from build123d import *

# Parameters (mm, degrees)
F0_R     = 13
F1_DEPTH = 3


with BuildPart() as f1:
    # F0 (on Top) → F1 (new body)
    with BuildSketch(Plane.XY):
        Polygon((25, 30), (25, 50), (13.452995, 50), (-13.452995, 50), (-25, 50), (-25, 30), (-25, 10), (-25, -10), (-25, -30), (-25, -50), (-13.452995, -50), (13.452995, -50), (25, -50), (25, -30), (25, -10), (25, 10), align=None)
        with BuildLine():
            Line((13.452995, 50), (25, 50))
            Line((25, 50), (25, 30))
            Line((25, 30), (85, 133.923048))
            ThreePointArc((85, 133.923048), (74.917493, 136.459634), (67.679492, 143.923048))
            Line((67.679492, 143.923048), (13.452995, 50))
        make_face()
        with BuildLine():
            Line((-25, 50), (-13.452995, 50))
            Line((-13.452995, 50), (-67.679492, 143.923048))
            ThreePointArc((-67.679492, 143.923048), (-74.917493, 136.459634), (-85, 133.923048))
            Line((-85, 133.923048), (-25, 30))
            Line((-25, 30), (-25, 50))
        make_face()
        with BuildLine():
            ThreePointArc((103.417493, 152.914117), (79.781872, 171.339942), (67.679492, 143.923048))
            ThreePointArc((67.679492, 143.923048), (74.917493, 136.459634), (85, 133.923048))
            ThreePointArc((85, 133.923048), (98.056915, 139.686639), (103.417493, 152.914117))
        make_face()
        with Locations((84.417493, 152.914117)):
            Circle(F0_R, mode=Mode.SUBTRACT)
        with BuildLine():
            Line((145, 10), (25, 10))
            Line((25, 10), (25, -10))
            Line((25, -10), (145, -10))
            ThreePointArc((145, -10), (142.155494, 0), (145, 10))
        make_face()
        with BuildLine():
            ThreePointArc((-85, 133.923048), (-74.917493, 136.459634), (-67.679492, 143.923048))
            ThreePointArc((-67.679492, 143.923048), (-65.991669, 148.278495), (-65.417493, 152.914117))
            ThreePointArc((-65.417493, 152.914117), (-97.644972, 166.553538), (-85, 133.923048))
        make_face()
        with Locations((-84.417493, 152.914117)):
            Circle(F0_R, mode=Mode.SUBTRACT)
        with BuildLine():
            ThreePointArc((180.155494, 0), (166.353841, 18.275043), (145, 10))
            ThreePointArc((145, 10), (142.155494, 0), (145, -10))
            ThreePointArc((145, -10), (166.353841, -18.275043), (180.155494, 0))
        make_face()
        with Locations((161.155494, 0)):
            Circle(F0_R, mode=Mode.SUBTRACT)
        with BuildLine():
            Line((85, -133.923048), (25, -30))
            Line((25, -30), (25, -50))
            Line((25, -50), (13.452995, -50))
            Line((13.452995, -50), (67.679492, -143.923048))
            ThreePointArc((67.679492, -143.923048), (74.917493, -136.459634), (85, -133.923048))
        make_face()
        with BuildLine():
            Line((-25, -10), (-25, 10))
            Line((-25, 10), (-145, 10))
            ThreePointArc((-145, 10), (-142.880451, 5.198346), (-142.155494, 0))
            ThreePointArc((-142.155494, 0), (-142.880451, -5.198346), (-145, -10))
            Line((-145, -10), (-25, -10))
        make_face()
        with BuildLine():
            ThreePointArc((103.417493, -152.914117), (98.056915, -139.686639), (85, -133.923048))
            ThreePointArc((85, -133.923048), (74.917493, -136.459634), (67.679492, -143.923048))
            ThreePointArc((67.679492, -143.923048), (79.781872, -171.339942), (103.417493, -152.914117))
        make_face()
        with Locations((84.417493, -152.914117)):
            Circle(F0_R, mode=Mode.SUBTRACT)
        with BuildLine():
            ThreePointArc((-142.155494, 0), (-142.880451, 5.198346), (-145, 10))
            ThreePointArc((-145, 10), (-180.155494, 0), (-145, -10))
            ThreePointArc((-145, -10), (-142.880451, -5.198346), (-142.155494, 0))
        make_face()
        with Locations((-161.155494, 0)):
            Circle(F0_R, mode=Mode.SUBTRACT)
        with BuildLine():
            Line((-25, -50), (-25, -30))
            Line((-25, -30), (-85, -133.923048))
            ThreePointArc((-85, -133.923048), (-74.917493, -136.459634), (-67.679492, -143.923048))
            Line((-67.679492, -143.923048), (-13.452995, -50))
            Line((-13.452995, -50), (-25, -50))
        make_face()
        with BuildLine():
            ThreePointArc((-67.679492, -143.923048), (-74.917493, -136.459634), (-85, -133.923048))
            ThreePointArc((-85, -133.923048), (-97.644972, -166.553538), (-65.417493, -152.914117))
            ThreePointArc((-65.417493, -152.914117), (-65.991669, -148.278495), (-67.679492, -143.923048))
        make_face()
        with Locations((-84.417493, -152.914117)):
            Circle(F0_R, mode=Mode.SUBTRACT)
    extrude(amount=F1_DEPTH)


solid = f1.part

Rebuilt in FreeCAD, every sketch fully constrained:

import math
import FreeCAD as App
import Part
import Sketcher

V = App.Vector
Q = App.Units.Quantity

doc = App.newDocument("Part")
body = doc.addObject("PartDesign::Body", "Body")

sketch1 = doc.addObject("Sketcher::SketchObject", "Sketch")
body.addObject(sketch1)
sketch1.AttachmentSupport = (doc.XY_Plane, [""])
sketch1.MapMode = "FlatFace"
sketch1.addGeometry([
    Part.LineSegment(V(13.452995, 50, 0), V(-13.452995, 50, 0)),
    Part.LineSegment(V(-13.452995, 50, 0), V(-67.679492, 143.923048, 0)),
    Part.ArcOfCircle(Part.Circle(V(-84.417508, 152.914121, 0), V(0, 0, 1), 19.000015), math.radians(-28.243126), math.radians(-0.000012)),
    Part.ArcOfCircle(Part.Circle(V(-84.417493, 152.914117, 0), V(0, 0, 1), 19), math.radians(0.000001), math.radians(268.243136)),
    Part.LineSegment(V(-85, 133.923048, 0), V(-25, 30, 0)),
    Part.LineSegment(V(-25, 30, 0), V(-25, 10, 0)),
    Part.LineSegment(V(-25, 10, 0), V(-145, 10, 0)),
    Part.ArcOfCircle(Part.Circle(V(-161.155494, 0, 0), V(0, 0, 1), 19), math.radians(31.756864), math.radians(328.243136)),
    Part.LineSegment(V(-145, -10, 0), V(-25, -10, 0)),
    Part.LineSegment(V(-25, -10, 0), V(-25, -30, 0)),
    Part.LineSegment(V(-25, -30, 0), V(-85, -133.923048, 0)),
    Part.ArcOfCircle(Part.Circle(V(-84.417493, -152.914117, 0), V(0, 0, 1), 19), math.radians(91.756864), math.radians(359.999999)),
    Part.ArcOfCircle(Part.Circle(V(-84.417508, -152.914121, 0), V(0, 0, 1), 19.000015), math.radians(0.000012), math.radians(28.243126)),
    Part.LineSegment(V(-67.679492, -143.923048, 0), V(-13.452995, -50, 0)),
    Part.LineSegment(V(-13.452995, -50, 0), V(13.452995, -50, 0)),
    Part.LineSegment(V(13.452995, -50, 0), V(67.679492, -143.923048, 0)),
    Part.ArcOfCircle(Part.Circle(V(84.417493, -152.914117, 0), V(0, 0, 1), 19), math.radians(151.756862), math.radians(360.000001)),
    Part.ArcOfCircle(Part.Circle(V(84.417493, -152.914117, 0), V(0, 0, 1), 19), math.radians(0), math.radians(88.243135)),
    Part.LineSegment(V(85, -133.923048, 0), V(25, -30, 0)),
    Part.LineSegment(V(25, -30, 0), V(25, -10, 0)),
    Part.LineSegment(V(25, -10, 0), V(145, -10, 0)),
    Part.ArcOfCircle(Part.Circle(V(161.155494, 0, 0), V(0, 0, 1), 19), math.radians(-148.243137), math.radians(0.000001)),
    Part.ArcOfCircle(Part.Circle(V(161.155494, 0, 0), V(0, 0, 1), 19), math.radians(-0.000001), math.radians(148.243137)),
    Part.LineSegment(V(145, 10, 0), V(25, 10, 0)),
    Part.LineSegment(V(25, 10, 0), V(25, 30, 0)),
    Part.LineSegment(V(25, 30, 0), V(85, 133.923048, 0)),
    Part.ArcOfCircle(Part.Circle(V(84.417493, 152.914117, 0), V(0, 0, 1), 19), math.radians(-88.243135), math.radians(0)),
    Part.ArcOfCircle(Part.Circle(V(84.417493, 152.914117, 0), V(0, 0, 1), 19), math.radians(-0.000001), math.radians(208.243138)),
    Part.LineSegment(V(67.679492, 143.923048, 0), V(13.452995, 50, 0)),
    Part.Circle(V(-84.417493, -152.914117, 0), V(0, 0, 1), 13),
    Part.Circle(V(84.417493, -152.914117, 0), V(0, 0, 1), 13),
    Part.Circle(V(-161.155494, 0, 0), V(0, 0, 1), 13),
    Part.Circle(V(-84.417493, 152.914117, 0), V(0, 0, 1), 13),
    Part.Circle(V(161.155494, 0, 0), V(0, 0, 1), 13),
    Part.Circle(V(84.417493, 152.914117, 0), V(0, 0, 1), 13),
], False)
sketch1.addConstraint([
    Sketcher.Constraint("Coincident", 0, 2, 1, 1),
    Sketcher.Constraint("Coincident", 1, 2, 2, 1),
    Sketcher.Constraint("Tangent", 2, 2, 3, 1),
    Sketcher.Constraint("Coincident", 3, 2, 4, 1),
    Sketcher.Constraint("Coincident", 4, 2, 5, 1),
    Sketcher.Constraint("Coincident", 5, 2, 6, 1),
    Sketcher.Constraint("Coincident", 6, 2, 7, 1),
    Sketcher.Constraint("Coincident", 7, 2, 8, 1),
    Sketcher.Constraint("Coincident", 8, 2, 9, 1),
    Sketcher.Constraint("Coincident", 9, 2, 10, 1),
    Sketcher.Constraint("Coincident", 10, 2, 11, 1),
    Sketcher.Constraint("Tangent", 11, 2, 12, 1),
    Sketcher.Constraint("Coincident", 12, 2, 13, 1),
    Sketcher.Constraint("Coincident", 13, 2, 14, 1),
    Sketcher.Constraint("Coincident", 14, 2, 15, 1),
    Sketcher.Constraint("Coincident", 15, 2, 16, 1),
    Sketcher.Constraint("Tangent", 16, 2, 17, 1),
    Sketcher.Constraint("Coincident", 17, 2, 18, 1),
    Sketcher.Constraint("Coincident", 18, 2, 19, 1),
    Sketcher.Constraint("Coincident", 19, 2, 20, 1),
    Sketcher.Constraint("Coincident", 20, 2, 21, 1),
    Sketcher.Constraint("Tangent", 21, 2, 22, 1),
    Sketcher.Constraint("Coincident", 22, 2, 23, 1),
    Sketcher.Constraint("Coincident", 23, 2, 24, 1),
    Sketcher.Constraint("Coincident", 24, 2, 25, 1),
    Sketcher.Constraint("Coincident", 25, 2, 26, 1),
    Sketcher.Constraint("Tangent", 26, 2, 27, 1),
    Sketcher.Constraint("Coincident", 27, 2, 28, 1),
    Sketcher.Constraint("Coincident", 28, 2, 0, 1),
    Sketcher.Constraint("Horizontal", 0),
    Sketcher.Constraint("Vertical", 5),
    Sketcher.Constraint("Horizontal", 6),
    Sketcher.Constraint("Horizontal", 8),
    Sketcher.Constraint("Vertical", 9),
    Sketcher.Constraint("Horizontal", 14),
    Sketcher.Constraint("Vertical", 19),
    Sketcher.Constraint("Horizontal", 20),
    Sketcher.Constraint("Horizontal", 23),
    Sketcher.Constraint("Vertical", 24),
    Sketcher.Constraint("Coincident", 29, 3, 11, 3),
    Sketcher.Constraint("Coincident", 30, 3, 16, 3),
    Sketcher.Constraint("Coincident", 31, 3, 7, 3),
    Sketcher.Constraint("Coincident", 32, 3, 3, 3),
    Sketcher.Constraint("Coincident", 33, 3, 21, 3),
    Sketcher.Constraint("Coincident", 34, 3, 26, 3),
    Sketcher.Constraint("Equal", 3, 7),
    Sketcher.Constraint("Equal", 7, 11),
    Sketcher.Constraint("Equal", 2, 12),
    Sketcher.Constraint("Equal", 11, 16),
    Sketcher.Constraint("Equal", 16, 17),
    Sketcher.Constraint("Equal", 17, 21),
    Sketcher.Constraint("Equal", 21, 22),
    Sketcher.Constraint("Equal", 22, 26),
    Sketcher.Constraint("Equal", 26, 27),
    Sketcher.Constraint("Equal", 29, 30),
    Sketcher.Constraint("Equal", 30, 31),
    Sketcher.Constraint("Equal", 31, 32),
    Sketcher.Constraint("Equal", 32, 33),
    Sketcher.Constraint("Equal", 33, 34),
    Sketcher.Constraint("Symmetric", 3, 3, 16, 3, -1, 1),
    Sketcher.Constraint("Symmetric", 7, 3, 21, 3, -1, 1),
    Sketcher.Constraint("Symmetric", 11, 3, 26, 3, -1, 1),
    Sketcher.Constraint("Symmetric", 0, 2, 14, 2, -1, 1),
    Sketcher.Constraint("Symmetric", 1, 2, 15, 2, -1, 1),
    Sketcher.Constraint("Symmetric", 4, 2, 18, 2, -1, 1),
    Sketcher.Constraint("Symmetric", 8, 2, 23, 2, -1, 1),
    Sketcher.Constraint("Symmetric", 11, 3, 16, 3, -2),
    Sketcher.Constraint("Symmetric", 9, 2, 18, 2, -2),
    Sketcher.Constraint("Symmetric", 7, 2, 20, 2, -2),
    Sketcher.Constraint("PointOnObject", 21, 2, -1),
    Sketcher.Constraint("Parallel", 1, 4),
    Sketcher.Constraint("Parallel", 10, 13),
    Sketcher.Constraint("Parallel", 15, 18),
    Sketcher.Constraint("Parallel", 13, 25),
    Sketcher.Constraint("Parallel", 25, 28),
    Sketcher.Constraint("Horizontal", 34, 3, 2, 2),
    Sketcher.Constraint("Horizontal", 30, 3, 11, 2),
    Sketcher.Constraint("Horizontal", 12, 2, 15, 2),
    Sketcher.Constraint("Horizontal", 11, 2, 16, 2),
    Sketcher.Constraint("Horizontal", 10, 2, 17, 2),
    Sketcher.Constraint("Horizontal", 6, 2, 22, 2),
    Sketcher.Constraint("Horizontal", 4, 2, 24, 2),
    Sketcher.Constraint("Horizontal", 2, 2, 26, 2),
    Sketcher.Constraint("Horizontal", 1, 2, 27, 2),
    Sketcher.Constraint("Diameter", 29, Q("26 mm")),
    Sketcher.Constraint("Radius", 3, Q("19 mm")),
    Sketcher.Constraint("DistanceX", 6, 2, 6, 1, Q("120 mm")),
    Sketcher.Constraint("DistanceY", 5, 2, 5, 1, Q("20 mm")),
    Sketcher.Constraint("Angle", 1, Q("120 deg")),
    Sketcher.Constraint("Distance", 4, Q("120 mm")),
    Sketcher.Constraint("DistanceY", -1, 1, 0, 2, Q("50 mm")),
    Sketcher.Constraint("DistanceX", 3, 2, -1, 1, Q("85 mm")),
    Sketcher.Constraint("DistanceY", -1, 1, 4, 2, Q("30 mm")),
    Sketcher.Constraint("DistanceY", 3, 2, 1, 2, Q("10 mm")),
    Sketcher.Constraint("DistanceX", 7, 3, 3, 3, Q("76.738001 mm")),
])
pad1 = doc.addObject("PartDesign::Pad", "Pad")
body.addObject(pad1)
pad1.Profile = sketch1
pad1.Length = 3

doc.recompute()
